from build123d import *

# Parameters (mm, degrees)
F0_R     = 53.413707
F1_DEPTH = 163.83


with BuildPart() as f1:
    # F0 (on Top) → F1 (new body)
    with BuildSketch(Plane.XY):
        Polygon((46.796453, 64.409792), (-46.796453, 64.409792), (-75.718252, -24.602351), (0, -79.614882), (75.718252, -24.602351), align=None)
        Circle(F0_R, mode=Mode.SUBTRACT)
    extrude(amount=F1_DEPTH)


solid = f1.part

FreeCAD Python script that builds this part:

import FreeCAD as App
import Part
import Sketcher
Q = App.Units.Quantity


def add_polygon(sketch, points):
    """Adds a closed chain of lines whose ends are joined by coincident constraints."""
    first, n = sketch.GeometryCount, len(points)
    for a, b in zip(points, points[1:] + points[:1]):
        sketch.addGeometry(Part.LineSegment(App.Vector(*a, 0), App.Vector(*b, 0)), False)
    for i in range(n):
        sketch.addConstraint(Sketcher.Constraint("Coincident", first + i, 2, first + (i + 1) % n, 1))

doc = App.newDocument("Part")
body = doc.addObject("PartDesign::Body", "Body")

# Sketch on XY plane
sketch1 = body.newObject("Sketcher::SketchObject", "Sketch")
sketch1.AttachmentSupport = (doc.getObject("XY_Plane"), [""])
sketch1.MapMode = "FlatFace"
add_polygon(sketch1, [(46.796453, 64.409792), (-46.796453, 64.409792), (-75.718252, -24.602351), (0, -79.614882), (75.718252, -24.602351)])  # lines 0-4
sketch1.addGeometry(Part.Circle(App.Vector(0, 0, 0), App.Vector(0, 0, 1), 53.413707), False)  # 5
sketch1.addConstraint(Sketcher.Constraint("Horizontal", 0))
sketch1.addConstraint(Sketcher.Constraint("Coincident", 5, 3, -1, 1))
sketch1.addConstraint(Sketcher.Constraint("Symmetric", 1, 2, 3, 2, -2))
sketch1.addConstraint(Sketcher.Constraint("PointOnObject", 2, 2, -2))
sketch1.addConstraint(Sketcher.Constraint("Equal", 1, 2))
sketch1.addConstraint(Sketcher.Constraint("Equal", 3, 4))
sketch1.addConstraint(Sketcher.Constraint("Angle", 1, Q("-108 deg")))
sketch1.addConstraint(Sketcher.Constraint("Angle", 2, Q("-36 deg")))
sketch1.addConstraint(Sketcher.Constraint("Diameter", 5, Q("106.827414 mm")))
sketch1.addConstraint(Sketcher.Constraint("DistanceX", 1, 2, 0, 2, Q("28.921799 mm")))
sketch1.addConstraint(Sketcher.Constraint("DistanceY", -1, 1, 0, 2, Q("64.409792 mm")))
pad1 = body.newObject("PartDesign::Pad", "Pad")
pad1.Profile = sketch1
pad1.Length = Q("6.45 in")

doc.recompute()
